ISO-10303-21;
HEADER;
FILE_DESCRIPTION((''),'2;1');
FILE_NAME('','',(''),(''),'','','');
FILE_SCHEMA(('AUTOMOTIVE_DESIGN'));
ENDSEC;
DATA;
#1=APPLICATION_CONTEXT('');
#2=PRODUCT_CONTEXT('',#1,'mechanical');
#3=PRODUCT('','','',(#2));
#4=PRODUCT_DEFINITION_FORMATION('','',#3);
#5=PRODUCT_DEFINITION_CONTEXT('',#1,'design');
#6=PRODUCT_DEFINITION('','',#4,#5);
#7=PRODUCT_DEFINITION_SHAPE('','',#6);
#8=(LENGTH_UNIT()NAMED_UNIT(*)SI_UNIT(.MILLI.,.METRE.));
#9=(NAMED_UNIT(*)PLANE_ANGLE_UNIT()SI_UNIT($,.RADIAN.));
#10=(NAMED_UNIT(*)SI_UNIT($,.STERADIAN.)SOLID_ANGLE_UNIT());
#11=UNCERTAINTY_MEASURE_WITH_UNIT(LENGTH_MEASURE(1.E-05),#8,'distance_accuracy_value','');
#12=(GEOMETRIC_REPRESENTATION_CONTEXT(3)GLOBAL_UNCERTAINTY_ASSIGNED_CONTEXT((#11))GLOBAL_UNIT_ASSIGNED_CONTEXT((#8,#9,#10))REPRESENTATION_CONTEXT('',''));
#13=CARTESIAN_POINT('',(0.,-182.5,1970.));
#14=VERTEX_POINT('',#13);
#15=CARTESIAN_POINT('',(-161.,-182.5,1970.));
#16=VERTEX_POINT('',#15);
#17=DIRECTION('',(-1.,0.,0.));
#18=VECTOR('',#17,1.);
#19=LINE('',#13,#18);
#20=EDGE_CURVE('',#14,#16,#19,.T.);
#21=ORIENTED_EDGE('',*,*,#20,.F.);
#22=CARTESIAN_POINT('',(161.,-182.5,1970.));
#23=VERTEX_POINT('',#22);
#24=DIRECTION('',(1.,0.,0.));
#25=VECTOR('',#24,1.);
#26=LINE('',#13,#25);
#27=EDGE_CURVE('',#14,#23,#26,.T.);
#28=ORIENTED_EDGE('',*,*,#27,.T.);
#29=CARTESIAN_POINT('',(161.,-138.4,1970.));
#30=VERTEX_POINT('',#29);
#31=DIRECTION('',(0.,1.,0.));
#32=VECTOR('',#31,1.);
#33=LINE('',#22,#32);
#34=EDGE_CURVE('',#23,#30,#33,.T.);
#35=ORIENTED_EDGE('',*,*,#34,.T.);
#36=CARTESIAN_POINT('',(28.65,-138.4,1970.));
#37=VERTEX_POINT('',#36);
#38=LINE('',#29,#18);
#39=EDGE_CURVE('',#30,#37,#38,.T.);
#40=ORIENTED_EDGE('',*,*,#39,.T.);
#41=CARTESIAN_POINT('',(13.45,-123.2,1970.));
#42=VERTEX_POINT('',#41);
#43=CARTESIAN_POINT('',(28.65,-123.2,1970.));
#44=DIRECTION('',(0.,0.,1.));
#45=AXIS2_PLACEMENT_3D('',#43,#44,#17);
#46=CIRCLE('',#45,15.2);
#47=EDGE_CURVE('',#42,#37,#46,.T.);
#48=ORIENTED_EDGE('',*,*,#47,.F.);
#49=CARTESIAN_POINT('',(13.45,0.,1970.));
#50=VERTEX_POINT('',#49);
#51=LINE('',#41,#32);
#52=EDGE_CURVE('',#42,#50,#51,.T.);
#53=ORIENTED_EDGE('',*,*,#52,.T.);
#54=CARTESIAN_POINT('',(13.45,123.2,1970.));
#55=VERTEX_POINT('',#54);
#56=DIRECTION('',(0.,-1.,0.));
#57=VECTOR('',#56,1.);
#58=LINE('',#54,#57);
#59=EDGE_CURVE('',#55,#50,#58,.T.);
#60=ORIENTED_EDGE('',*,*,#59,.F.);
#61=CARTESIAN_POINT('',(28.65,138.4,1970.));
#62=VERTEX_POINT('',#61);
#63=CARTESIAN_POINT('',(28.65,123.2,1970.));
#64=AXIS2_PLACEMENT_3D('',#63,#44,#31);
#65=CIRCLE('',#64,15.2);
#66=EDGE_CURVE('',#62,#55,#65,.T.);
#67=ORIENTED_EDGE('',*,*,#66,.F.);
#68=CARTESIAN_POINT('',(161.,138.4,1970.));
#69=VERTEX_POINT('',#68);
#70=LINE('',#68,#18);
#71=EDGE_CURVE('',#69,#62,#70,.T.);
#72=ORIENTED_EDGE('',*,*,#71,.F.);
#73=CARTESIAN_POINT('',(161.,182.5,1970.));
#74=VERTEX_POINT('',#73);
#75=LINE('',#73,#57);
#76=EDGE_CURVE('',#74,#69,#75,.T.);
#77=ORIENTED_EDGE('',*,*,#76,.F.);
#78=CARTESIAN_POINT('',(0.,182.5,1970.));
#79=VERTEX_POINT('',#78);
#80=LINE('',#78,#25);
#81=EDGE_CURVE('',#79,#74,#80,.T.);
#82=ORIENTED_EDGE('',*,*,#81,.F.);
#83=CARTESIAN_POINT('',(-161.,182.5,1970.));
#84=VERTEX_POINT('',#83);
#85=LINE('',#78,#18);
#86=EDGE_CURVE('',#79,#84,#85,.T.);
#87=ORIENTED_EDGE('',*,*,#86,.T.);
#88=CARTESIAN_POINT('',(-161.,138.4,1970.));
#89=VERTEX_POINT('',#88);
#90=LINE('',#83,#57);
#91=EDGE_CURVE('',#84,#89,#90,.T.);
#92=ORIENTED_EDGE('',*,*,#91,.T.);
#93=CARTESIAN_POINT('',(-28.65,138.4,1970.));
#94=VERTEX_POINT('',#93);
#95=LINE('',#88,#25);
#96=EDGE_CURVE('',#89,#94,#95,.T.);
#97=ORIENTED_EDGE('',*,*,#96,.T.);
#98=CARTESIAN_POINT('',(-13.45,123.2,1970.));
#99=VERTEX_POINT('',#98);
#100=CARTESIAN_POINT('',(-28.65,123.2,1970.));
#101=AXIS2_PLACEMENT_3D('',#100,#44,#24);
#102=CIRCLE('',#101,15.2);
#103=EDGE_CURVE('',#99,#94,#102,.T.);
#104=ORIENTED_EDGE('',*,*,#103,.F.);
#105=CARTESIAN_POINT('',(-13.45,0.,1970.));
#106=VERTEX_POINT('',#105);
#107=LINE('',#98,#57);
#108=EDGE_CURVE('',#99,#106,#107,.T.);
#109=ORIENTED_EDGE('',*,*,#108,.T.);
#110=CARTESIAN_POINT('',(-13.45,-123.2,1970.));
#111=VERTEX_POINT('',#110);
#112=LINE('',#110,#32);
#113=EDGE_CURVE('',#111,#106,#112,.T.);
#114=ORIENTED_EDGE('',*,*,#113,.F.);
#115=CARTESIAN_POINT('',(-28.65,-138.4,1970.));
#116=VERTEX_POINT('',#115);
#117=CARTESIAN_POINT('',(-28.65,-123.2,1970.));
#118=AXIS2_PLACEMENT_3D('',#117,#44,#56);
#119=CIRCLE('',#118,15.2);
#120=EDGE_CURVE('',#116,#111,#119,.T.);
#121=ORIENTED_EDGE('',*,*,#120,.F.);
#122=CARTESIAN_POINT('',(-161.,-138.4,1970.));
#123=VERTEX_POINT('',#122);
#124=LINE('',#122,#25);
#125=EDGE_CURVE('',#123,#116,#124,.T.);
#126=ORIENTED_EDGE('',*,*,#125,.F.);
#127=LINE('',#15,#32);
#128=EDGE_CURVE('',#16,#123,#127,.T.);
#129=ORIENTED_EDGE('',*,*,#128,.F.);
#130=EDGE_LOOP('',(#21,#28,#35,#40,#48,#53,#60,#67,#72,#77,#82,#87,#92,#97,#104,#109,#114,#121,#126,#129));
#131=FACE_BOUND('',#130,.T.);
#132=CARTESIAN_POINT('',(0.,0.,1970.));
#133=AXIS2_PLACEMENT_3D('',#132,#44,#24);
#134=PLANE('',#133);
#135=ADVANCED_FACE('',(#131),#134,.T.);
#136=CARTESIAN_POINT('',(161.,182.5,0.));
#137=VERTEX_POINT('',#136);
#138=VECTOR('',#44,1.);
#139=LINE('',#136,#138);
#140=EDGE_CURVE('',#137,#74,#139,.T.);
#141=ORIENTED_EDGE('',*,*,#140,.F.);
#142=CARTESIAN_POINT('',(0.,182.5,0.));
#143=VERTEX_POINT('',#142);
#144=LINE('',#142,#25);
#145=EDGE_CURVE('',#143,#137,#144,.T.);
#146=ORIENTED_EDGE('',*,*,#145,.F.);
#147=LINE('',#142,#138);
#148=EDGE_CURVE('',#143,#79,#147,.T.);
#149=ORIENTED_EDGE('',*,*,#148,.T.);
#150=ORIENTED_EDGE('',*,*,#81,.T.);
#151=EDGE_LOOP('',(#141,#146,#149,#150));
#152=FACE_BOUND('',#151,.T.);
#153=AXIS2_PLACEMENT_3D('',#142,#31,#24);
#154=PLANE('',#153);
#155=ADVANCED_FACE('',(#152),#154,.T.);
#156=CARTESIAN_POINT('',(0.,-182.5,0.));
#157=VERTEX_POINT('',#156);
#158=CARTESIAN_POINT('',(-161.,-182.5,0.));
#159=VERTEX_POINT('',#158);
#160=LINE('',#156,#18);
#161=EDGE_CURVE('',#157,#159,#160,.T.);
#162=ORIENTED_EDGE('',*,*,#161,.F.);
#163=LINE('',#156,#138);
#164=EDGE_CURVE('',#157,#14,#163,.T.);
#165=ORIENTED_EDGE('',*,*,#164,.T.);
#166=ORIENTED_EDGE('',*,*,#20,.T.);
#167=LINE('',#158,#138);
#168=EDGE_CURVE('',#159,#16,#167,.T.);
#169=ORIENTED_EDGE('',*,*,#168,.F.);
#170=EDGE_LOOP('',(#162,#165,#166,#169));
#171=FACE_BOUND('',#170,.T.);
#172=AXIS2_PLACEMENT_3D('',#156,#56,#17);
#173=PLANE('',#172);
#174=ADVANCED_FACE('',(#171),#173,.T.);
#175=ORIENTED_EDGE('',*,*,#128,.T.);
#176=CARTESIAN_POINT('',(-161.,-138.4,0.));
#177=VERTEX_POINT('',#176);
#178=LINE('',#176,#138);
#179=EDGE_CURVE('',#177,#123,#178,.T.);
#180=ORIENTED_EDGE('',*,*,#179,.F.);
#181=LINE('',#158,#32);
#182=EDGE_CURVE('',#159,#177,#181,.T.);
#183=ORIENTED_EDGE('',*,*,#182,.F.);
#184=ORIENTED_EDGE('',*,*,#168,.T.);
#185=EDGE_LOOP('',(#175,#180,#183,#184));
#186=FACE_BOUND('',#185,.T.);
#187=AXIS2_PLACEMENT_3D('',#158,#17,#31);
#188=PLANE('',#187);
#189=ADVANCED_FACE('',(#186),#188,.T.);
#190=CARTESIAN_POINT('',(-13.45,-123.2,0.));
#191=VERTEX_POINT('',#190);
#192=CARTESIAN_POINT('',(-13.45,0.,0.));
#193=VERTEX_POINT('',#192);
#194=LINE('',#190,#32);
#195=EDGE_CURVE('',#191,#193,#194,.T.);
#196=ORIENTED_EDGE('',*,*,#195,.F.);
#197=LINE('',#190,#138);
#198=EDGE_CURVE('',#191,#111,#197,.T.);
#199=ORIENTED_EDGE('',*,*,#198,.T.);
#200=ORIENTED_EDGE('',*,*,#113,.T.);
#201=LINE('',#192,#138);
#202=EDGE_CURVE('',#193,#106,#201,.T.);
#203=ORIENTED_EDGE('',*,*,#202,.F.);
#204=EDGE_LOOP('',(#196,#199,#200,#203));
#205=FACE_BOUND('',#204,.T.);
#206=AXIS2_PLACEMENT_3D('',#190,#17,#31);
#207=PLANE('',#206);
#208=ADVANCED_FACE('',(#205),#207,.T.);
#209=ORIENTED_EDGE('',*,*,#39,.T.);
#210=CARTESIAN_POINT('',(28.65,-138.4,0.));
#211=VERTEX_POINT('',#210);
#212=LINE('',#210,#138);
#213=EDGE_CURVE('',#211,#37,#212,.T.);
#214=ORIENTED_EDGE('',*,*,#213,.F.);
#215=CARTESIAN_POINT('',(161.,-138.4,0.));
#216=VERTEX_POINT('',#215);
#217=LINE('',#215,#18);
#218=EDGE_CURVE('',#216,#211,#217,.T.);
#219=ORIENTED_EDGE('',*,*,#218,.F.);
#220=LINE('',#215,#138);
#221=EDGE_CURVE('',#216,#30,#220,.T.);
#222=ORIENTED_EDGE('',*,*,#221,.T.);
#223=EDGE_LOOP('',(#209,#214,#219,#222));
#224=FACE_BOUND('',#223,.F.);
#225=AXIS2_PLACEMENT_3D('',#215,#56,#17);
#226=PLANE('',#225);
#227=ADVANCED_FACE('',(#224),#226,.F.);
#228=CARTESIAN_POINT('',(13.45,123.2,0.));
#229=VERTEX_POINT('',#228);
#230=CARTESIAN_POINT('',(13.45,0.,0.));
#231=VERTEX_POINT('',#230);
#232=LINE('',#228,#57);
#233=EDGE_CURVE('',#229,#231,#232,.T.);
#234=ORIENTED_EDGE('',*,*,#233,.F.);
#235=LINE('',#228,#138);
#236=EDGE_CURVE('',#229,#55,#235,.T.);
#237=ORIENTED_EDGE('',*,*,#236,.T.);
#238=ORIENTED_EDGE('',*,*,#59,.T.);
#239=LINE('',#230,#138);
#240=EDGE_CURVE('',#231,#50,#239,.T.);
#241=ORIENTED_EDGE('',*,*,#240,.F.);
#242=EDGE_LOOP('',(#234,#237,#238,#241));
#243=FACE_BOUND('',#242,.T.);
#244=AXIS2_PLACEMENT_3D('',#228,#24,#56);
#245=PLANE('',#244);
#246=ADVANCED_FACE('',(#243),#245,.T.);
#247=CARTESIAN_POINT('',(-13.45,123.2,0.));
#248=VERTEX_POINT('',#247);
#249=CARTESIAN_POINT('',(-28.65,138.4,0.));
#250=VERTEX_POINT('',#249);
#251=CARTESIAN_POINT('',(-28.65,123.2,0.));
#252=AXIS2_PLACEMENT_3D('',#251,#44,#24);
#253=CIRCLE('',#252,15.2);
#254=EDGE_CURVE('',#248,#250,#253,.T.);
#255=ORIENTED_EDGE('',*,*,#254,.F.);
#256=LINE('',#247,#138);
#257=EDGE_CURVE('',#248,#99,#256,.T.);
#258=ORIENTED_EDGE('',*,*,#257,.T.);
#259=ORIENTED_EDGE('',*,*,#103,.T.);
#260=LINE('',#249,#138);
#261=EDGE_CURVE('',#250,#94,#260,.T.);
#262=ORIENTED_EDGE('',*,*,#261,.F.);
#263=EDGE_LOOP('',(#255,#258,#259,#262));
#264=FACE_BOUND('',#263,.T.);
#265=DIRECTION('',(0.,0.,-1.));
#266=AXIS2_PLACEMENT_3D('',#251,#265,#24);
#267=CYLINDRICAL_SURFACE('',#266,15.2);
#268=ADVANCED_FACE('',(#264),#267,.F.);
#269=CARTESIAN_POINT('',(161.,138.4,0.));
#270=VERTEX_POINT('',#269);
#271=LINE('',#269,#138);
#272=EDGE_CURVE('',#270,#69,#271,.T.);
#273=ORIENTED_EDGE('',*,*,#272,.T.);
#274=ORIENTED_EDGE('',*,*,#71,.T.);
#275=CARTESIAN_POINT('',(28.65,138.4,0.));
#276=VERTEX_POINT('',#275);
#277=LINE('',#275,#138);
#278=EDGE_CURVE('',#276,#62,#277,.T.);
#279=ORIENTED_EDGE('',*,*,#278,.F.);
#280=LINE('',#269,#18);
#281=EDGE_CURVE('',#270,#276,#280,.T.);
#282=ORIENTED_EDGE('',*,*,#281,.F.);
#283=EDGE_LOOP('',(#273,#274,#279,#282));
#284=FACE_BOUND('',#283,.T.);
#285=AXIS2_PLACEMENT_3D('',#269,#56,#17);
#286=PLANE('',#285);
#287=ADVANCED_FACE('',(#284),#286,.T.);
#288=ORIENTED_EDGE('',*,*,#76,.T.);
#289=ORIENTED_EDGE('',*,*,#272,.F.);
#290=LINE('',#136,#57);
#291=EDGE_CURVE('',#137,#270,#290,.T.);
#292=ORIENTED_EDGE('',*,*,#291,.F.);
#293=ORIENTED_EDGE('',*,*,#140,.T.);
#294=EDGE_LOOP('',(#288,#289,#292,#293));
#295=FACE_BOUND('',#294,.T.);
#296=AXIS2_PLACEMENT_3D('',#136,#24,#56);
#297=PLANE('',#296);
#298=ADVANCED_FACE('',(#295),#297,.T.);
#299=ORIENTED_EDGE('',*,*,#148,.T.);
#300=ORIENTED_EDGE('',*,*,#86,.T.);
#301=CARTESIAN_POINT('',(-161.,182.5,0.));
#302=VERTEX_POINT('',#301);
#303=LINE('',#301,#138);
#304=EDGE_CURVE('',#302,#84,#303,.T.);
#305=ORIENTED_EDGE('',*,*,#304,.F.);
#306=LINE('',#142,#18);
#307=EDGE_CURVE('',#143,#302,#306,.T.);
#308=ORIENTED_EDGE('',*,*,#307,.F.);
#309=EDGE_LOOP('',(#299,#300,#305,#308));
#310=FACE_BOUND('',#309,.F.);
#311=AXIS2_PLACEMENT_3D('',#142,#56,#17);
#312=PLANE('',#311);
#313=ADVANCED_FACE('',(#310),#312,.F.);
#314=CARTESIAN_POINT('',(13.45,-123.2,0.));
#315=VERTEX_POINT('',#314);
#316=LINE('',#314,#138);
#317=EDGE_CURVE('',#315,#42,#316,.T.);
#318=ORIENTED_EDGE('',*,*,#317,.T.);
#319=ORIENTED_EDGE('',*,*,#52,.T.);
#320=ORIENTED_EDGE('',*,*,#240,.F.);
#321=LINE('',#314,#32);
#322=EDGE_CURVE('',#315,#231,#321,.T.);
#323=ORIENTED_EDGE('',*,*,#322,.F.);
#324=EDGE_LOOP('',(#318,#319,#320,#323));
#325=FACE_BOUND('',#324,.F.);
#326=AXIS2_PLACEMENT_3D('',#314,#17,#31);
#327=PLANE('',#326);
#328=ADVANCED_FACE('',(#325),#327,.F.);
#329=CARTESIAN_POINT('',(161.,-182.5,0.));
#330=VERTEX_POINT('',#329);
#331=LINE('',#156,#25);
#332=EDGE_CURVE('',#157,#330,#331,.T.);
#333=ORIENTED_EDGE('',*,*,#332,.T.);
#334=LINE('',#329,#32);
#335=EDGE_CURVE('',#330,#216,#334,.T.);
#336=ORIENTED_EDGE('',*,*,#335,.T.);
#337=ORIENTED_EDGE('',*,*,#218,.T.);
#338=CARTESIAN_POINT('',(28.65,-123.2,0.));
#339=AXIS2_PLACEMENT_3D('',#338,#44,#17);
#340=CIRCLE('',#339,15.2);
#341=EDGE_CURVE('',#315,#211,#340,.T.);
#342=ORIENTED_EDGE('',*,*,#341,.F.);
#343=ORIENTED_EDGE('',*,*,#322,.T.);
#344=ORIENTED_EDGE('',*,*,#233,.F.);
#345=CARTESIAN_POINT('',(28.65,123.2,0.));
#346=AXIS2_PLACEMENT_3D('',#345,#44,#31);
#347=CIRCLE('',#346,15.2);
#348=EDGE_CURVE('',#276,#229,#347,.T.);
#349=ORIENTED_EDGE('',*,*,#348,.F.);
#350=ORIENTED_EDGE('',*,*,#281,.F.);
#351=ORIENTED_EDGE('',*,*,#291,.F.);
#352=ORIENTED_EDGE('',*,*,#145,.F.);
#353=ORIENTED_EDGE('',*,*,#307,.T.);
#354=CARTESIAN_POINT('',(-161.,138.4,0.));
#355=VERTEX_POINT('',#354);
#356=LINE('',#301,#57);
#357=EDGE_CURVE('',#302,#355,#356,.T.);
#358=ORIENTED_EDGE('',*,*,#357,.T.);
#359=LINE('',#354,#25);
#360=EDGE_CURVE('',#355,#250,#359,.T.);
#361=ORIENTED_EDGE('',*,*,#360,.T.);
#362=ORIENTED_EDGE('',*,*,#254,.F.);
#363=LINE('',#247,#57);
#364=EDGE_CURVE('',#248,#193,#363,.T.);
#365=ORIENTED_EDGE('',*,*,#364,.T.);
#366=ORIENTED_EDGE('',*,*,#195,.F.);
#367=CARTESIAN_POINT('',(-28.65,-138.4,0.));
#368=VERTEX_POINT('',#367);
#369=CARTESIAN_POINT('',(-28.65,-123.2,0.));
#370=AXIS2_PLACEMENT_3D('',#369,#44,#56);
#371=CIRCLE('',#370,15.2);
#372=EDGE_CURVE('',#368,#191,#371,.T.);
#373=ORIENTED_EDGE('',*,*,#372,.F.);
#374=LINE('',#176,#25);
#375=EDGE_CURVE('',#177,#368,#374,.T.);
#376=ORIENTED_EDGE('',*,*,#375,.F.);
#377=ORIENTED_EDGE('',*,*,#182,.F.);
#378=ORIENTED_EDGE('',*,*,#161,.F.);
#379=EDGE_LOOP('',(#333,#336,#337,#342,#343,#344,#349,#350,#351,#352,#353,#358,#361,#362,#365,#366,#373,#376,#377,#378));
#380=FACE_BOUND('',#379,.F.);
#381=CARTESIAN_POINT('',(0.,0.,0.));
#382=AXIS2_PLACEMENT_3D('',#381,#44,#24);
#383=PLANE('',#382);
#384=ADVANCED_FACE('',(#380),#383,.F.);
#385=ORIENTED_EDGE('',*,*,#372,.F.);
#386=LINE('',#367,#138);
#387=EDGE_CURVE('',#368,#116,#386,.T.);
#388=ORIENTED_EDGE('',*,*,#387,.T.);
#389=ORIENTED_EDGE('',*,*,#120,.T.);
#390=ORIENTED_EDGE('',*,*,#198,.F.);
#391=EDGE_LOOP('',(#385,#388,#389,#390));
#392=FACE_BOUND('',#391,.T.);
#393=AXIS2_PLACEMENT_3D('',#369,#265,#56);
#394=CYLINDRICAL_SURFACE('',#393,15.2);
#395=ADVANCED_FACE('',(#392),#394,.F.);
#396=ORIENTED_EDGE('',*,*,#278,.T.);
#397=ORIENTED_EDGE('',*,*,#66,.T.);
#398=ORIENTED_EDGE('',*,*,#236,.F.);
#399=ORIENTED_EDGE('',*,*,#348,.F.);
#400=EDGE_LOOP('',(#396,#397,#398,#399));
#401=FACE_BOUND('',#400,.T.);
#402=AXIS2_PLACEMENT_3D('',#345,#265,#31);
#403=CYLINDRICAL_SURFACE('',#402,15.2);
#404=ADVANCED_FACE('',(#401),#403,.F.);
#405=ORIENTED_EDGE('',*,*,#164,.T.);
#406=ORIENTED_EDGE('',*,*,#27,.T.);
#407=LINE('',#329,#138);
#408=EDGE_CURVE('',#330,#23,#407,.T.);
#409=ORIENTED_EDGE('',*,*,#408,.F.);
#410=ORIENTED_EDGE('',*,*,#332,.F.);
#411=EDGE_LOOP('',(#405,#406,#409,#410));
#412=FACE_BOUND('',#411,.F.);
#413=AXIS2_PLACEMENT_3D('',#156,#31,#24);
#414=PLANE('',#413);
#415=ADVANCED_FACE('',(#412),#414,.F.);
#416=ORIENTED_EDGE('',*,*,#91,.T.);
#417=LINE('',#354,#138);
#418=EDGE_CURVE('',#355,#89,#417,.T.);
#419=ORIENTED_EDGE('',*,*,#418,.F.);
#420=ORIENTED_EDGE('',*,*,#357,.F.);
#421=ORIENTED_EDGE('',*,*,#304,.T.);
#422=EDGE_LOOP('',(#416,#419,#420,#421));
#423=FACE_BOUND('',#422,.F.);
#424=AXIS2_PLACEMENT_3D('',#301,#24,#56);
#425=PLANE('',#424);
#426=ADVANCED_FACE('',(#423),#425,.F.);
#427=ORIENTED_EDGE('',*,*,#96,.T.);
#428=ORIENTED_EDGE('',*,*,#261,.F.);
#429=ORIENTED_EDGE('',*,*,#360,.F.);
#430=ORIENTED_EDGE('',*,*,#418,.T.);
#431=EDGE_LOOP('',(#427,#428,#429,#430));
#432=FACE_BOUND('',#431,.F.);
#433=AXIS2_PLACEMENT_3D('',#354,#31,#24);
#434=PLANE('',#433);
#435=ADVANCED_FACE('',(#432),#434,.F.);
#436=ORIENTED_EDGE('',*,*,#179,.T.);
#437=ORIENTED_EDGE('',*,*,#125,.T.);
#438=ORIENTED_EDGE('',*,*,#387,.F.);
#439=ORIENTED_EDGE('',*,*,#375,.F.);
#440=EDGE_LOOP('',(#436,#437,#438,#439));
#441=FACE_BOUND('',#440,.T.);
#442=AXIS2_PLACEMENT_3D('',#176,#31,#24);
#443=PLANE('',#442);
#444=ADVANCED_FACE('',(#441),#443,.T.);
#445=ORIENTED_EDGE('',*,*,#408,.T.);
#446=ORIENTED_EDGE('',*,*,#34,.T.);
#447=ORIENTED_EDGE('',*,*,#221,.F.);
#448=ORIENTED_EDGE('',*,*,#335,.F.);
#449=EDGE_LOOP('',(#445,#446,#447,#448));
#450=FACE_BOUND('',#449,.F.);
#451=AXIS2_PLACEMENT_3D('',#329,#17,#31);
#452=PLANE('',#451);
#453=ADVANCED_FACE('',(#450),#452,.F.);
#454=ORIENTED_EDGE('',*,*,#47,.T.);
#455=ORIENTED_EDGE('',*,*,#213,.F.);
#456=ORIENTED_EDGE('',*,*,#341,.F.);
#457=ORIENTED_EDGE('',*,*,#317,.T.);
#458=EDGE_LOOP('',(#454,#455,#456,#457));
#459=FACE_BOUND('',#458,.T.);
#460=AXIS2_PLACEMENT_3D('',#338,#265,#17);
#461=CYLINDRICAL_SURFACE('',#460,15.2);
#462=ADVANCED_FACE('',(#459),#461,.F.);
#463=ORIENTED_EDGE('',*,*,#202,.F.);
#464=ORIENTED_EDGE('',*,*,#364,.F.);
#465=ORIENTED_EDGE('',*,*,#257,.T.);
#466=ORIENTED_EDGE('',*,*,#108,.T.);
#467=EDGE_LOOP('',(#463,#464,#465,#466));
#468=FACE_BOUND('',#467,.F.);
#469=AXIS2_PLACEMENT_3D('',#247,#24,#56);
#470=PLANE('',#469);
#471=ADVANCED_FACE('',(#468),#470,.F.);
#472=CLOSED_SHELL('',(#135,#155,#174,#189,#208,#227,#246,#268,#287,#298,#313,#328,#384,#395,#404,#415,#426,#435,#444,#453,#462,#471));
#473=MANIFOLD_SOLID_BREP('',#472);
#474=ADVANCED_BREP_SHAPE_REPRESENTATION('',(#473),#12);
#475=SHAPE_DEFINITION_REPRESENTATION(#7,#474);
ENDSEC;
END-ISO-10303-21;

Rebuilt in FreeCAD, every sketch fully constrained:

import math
import FreeCAD as App
import Part
import Sketcher

V = App.Vector
Q = App.Units.Quantity

doc = App.newDocument("Part")
body = doc.addObject("PartDesign::Body", "Body")

# Sketch on XY plane
sketch1 = body.newObject("Sketcher::SketchObject", "Sketch")
sketch1.AttachmentSupport = (doc.getObject("XY_Plane"), [""])
sketch1.MapMode = "FlatFace"
sketch1.addGeometry(Part.LineSegment(V(-161, -138, 0), V(-161, -182, 0)), False)
sketch1.addGeometry(Part.LineSegment(V(-161, -182, 0), V(161, -182, 0)), False)
sketch1.addGeometry(Part.LineSegment(V(161, -182, 0), V(161, -138, 0)), False)
sketch1.addGeometry(Part.LineSegment(V(161, -138, 0), V(29, -138, 0)), False)
sketch1.addGeometry(Part.ArcOfCircle(Part.Circle(V(29, -123, 0), V(0, 0, 1), 15), math.radians(180), math.radians(270)), False)
sketch1.addGeometry(Part.LineSegment(V(13, -123, 0), V(13, 123, 0)), False)
sketch1.addGeometry(Part.ArcOfCircle(Part.Circle(V(29, 123, 0), V(0, 0, 1), 15), math.radians(90), math.radians(180)), False)
sketch1.addGeometry(Part.LineSegment(V(29, 138, 0), V(161, 138, 0)), False)
sketch1.addGeometry(Part.LineSegment(V(161, 138, 0), V(161, 182, 0)), False)
sketch1.addGeometry(Part.LineSegment(V(161, 182, 0), V(-161, 182, 0)), False)
sketch1.addGeometry(Part.LineSegment(V(-161, 182, 0), V(-161, 138, 0)), False)
sketch1.addGeometry(Part.LineSegment(V(-161, 138, 0), V(-29, 138, 0)), False)
sketch1.addGeometry(Part.ArcOfCircle(Part.Circle(V(-29, 123, 0), V(0, 0, 1), 15), math.radians(0), math.radians(90)), False)
sketch1.addGeometry(Part.LineSegment(V(-13, 123, 0), V(-13, -123, 0)), False)
sketch1.addGeometry(Part.ArcOfCircle(Part.Circle(V(-29, -123, 0), V(0, 0, 1), 15), math.radians(-90), math.radians(0)), False)
sketch1.addGeometry(Part.LineSegment(V(-29, -138, 0), V(-161, -138, 0)), False)
sketch1.addConstraint(Sketcher.Constraint("Coincident", 0, 2, 1, 1))
sketch1.addConstraint(Sketcher.Constraint("Coincident", 1, 2, 2, 1))
sketch1.addConstraint(Sketcher.Constraint("Coincident", 2, 2, 3, 1))
sketch1.addConstraint(Sketcher.Constraint("Tangent", 3, 2, 4, 2))
sketch1.addConstraint(Sketcher.Constraint("Tangent", 4, 1, 5, 1))
sketch1.addConstraint(Sketcher.Constraint("Tangent", 5, 2, 6, 2))
sketch1.addConstraint(Sketcher.Constraint("Tangent", 6, 1, 7, 1))
sketch1.addConstraint(Sketcher.Constraint("Coincident", 7, 2, 8, 1))
sketch1.addConstraint(Sketcher.Constraint("Coincident", 8, 2, 9, 1))
sketch1.addConstraint(Sketcher.Constraint("Coincident", 9, 2, 10, 1))
sketch1.addConstraint(Sketcher.Constraint("Coincident", 10, 2, 11, 1))
sketch1.addConstraint(Sketcher.Constraint("Tangent", 11, 2, 12, 2))
sketch1.addConstraint(Sketcher.Constraint("Tangent", 12, 1, 13, 1))
sketch1.addConstraint(Sketcher.Constraint("Tangent", 13, 2, 14, 2))
sketch1.addConstraint(Sketcher.Constraint("Tangent", 14, 1, 15, 1))
sketch1.addConstraint(Sketcher.Constraint("Coincident", 15, 2, 0, 1))
sketch1.addConstraint(Sketcher.Constraint("Vertical", 0))
sketch1.addConstraint(Sketcher.Constraint("Horizontal", 1))
sketch1.addConstraint(Sketcher.Constraint("Vertical", 2))
sketch1.addConstraint(Sketcher.Constraint("Horizontal", 3))
sketch1.addConstraint(Sketcher.Constraint("Vertical", 5))
sketch1.addConstraint(Sketcher.Constraint("Horizontal", 7))
sketch1.addConstraint(Sketcher.Constraint("Vertical", 8))
sketch1.addConstraint(Sketcher.Constraint("Horizontal", 9))
sketch1.addConstraint(Sketcher.Constraint("Vertical", 10))
sketch1.addConstraint(Sketcher.Constraint("Horizontal", 11))
sketch1.addConstraint(Sketcher.Constraint("Vertical", 13))
sketch1.addConstraint(Sketcher.Constraint("Horizontal", 15))
sketch1.addConstraint(Sketcher.Constraint("Equal", 4, 6))
sketch1.addConstraint(Sketcher.Constraint("Equal", 6, 12))
sketch1.addConstraint(Sketcher.Constraint("Equal", 12, 14))
sketch1.addConstraint(Sketcher.Constraint("Symmetric", 4, 3, 12, 3, -1, 1))
sketch1.addConstraint(Sketcher.Constraint("Symmetric", 0, 2, 8, 2, -1, 1))
sketch1.addConstraint(Sketcher.Constraint("Symmetric", 7, 2, 10, 2, -2))
sketch1.addConstraint(Sketcher.Constraint("Symmetric", 2, 2, 15, 2, -2))
sketch1.addConstraint(Sketcher.Constraint("Radius", 4, Q("15.2 mm")))
sketch1.addConstraint(Sketcher.Constraint("DistanceY", 0, 2, 0, 1, Q("44.1 mm")))
sketch1.addConstraint(Sketcher.Constraint("DistanceX", 0, 2, -1, 1, Q("161 mm")))
sketch1.addConstraint(Sketcher.Constraint("DistanceY", 0, 2, -1, 1, Q("182.5 mm")))
sketch1.addConstraint(Sketcher.Constraint("DistanceX", -1, 1, 4, 1, Q("13.45 mm")))
pad1 = body.newObject("PartDesign::Pad", "Pad")
pad1.Profile = sketch1
pad1.Length = 1970

doc.recompute()
